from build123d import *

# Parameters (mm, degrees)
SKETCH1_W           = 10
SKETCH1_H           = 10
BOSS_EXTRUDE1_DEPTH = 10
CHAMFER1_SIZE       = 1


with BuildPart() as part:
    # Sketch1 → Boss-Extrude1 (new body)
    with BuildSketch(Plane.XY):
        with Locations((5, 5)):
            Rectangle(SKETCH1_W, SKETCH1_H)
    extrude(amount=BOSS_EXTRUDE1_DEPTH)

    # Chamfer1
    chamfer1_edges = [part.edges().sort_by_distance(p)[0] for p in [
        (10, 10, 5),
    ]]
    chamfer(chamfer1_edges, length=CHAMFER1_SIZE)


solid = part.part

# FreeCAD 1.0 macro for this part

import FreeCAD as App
import Part
import Sketcher
Q = App.Units.Quantity


def edges_at(feature, points):
    """Names of the edges that pass closest to the given points."""
    edges = feature.Shape.Edges
    near = lambda p: min(range(len(edges)), key=lambda i: edges[i].distToShape(Part.Vertex(*p))[0])
    return sorted({f"Edge{near(p) + 1}" for p in points})

doc = App.newDocument("Part")
body = doc.addObject("PartDesign::Body", "Body")

sketch1 = doc.addObject("Sketcher::SketchObject", "Sketch")
body.addObject(sketch1)
sketch1.AttachmentSupport = (doc.XY_Plane, [""])
sketch1.MapMode = "FlatFace"
sketch1.addGeometry([
    Part.LineSegment(App.Vector(0, 10, 0), App.Vector(0, 0, 0)),
    Part.LineSegment(App.Vector(0, 0, 0), App.Vector(10, 0, 0)),
    Part.LineSegment(App.Vector(10, 0, 0), App.Vector(10, 10, 0)),
    Part.LineSegment(App.Vector(10, 10, 0), App.Vector(0, 10, 0)),
], False)
sketch1.addConstraint([
    Sketcher.Constraint("Coincident", 0, 2, 1, 1),
    Sketcher.Constraint("Coincident", 1, 2, 2, 1),
    Sketcher.Constraint("Coincident", 2, 2, 3, 1),
    Sketcher.Constraint("Coincident", 3, 2, 0, 1),
    Sketcher.Constraint("Vertical", 0),
    Sketcher.Constraint("Horizontal", 1),
    Sketcher.Constraint("Vertical", 2),
    Sketcher.Constraint("Horizontal", 3),
    Sketcher.Constraint("Coincident", 0, 2, -1, 1),
    Sketcher.Constraint("Equal", 3, 0),
    Sketcher.Constraint("DistanceX", 1, 1, 1, 2, Q("10 mm")),
])
pad1 = doc.addObject("PartDesign::Pad", "Pad")
body.addObject(pad1)
pad1.Profile = sketch1
pad1.Length = 10
doc.recompute()

chamfer = doc.addObject("PartDesign::Chamfer", "Chamfer")
body.addObject(chamfer)
chamfer.Base = (pad1, edges_at(pad1, [(10, 10, 5)]))
chamfer.Size = 1

doc.recompute()
